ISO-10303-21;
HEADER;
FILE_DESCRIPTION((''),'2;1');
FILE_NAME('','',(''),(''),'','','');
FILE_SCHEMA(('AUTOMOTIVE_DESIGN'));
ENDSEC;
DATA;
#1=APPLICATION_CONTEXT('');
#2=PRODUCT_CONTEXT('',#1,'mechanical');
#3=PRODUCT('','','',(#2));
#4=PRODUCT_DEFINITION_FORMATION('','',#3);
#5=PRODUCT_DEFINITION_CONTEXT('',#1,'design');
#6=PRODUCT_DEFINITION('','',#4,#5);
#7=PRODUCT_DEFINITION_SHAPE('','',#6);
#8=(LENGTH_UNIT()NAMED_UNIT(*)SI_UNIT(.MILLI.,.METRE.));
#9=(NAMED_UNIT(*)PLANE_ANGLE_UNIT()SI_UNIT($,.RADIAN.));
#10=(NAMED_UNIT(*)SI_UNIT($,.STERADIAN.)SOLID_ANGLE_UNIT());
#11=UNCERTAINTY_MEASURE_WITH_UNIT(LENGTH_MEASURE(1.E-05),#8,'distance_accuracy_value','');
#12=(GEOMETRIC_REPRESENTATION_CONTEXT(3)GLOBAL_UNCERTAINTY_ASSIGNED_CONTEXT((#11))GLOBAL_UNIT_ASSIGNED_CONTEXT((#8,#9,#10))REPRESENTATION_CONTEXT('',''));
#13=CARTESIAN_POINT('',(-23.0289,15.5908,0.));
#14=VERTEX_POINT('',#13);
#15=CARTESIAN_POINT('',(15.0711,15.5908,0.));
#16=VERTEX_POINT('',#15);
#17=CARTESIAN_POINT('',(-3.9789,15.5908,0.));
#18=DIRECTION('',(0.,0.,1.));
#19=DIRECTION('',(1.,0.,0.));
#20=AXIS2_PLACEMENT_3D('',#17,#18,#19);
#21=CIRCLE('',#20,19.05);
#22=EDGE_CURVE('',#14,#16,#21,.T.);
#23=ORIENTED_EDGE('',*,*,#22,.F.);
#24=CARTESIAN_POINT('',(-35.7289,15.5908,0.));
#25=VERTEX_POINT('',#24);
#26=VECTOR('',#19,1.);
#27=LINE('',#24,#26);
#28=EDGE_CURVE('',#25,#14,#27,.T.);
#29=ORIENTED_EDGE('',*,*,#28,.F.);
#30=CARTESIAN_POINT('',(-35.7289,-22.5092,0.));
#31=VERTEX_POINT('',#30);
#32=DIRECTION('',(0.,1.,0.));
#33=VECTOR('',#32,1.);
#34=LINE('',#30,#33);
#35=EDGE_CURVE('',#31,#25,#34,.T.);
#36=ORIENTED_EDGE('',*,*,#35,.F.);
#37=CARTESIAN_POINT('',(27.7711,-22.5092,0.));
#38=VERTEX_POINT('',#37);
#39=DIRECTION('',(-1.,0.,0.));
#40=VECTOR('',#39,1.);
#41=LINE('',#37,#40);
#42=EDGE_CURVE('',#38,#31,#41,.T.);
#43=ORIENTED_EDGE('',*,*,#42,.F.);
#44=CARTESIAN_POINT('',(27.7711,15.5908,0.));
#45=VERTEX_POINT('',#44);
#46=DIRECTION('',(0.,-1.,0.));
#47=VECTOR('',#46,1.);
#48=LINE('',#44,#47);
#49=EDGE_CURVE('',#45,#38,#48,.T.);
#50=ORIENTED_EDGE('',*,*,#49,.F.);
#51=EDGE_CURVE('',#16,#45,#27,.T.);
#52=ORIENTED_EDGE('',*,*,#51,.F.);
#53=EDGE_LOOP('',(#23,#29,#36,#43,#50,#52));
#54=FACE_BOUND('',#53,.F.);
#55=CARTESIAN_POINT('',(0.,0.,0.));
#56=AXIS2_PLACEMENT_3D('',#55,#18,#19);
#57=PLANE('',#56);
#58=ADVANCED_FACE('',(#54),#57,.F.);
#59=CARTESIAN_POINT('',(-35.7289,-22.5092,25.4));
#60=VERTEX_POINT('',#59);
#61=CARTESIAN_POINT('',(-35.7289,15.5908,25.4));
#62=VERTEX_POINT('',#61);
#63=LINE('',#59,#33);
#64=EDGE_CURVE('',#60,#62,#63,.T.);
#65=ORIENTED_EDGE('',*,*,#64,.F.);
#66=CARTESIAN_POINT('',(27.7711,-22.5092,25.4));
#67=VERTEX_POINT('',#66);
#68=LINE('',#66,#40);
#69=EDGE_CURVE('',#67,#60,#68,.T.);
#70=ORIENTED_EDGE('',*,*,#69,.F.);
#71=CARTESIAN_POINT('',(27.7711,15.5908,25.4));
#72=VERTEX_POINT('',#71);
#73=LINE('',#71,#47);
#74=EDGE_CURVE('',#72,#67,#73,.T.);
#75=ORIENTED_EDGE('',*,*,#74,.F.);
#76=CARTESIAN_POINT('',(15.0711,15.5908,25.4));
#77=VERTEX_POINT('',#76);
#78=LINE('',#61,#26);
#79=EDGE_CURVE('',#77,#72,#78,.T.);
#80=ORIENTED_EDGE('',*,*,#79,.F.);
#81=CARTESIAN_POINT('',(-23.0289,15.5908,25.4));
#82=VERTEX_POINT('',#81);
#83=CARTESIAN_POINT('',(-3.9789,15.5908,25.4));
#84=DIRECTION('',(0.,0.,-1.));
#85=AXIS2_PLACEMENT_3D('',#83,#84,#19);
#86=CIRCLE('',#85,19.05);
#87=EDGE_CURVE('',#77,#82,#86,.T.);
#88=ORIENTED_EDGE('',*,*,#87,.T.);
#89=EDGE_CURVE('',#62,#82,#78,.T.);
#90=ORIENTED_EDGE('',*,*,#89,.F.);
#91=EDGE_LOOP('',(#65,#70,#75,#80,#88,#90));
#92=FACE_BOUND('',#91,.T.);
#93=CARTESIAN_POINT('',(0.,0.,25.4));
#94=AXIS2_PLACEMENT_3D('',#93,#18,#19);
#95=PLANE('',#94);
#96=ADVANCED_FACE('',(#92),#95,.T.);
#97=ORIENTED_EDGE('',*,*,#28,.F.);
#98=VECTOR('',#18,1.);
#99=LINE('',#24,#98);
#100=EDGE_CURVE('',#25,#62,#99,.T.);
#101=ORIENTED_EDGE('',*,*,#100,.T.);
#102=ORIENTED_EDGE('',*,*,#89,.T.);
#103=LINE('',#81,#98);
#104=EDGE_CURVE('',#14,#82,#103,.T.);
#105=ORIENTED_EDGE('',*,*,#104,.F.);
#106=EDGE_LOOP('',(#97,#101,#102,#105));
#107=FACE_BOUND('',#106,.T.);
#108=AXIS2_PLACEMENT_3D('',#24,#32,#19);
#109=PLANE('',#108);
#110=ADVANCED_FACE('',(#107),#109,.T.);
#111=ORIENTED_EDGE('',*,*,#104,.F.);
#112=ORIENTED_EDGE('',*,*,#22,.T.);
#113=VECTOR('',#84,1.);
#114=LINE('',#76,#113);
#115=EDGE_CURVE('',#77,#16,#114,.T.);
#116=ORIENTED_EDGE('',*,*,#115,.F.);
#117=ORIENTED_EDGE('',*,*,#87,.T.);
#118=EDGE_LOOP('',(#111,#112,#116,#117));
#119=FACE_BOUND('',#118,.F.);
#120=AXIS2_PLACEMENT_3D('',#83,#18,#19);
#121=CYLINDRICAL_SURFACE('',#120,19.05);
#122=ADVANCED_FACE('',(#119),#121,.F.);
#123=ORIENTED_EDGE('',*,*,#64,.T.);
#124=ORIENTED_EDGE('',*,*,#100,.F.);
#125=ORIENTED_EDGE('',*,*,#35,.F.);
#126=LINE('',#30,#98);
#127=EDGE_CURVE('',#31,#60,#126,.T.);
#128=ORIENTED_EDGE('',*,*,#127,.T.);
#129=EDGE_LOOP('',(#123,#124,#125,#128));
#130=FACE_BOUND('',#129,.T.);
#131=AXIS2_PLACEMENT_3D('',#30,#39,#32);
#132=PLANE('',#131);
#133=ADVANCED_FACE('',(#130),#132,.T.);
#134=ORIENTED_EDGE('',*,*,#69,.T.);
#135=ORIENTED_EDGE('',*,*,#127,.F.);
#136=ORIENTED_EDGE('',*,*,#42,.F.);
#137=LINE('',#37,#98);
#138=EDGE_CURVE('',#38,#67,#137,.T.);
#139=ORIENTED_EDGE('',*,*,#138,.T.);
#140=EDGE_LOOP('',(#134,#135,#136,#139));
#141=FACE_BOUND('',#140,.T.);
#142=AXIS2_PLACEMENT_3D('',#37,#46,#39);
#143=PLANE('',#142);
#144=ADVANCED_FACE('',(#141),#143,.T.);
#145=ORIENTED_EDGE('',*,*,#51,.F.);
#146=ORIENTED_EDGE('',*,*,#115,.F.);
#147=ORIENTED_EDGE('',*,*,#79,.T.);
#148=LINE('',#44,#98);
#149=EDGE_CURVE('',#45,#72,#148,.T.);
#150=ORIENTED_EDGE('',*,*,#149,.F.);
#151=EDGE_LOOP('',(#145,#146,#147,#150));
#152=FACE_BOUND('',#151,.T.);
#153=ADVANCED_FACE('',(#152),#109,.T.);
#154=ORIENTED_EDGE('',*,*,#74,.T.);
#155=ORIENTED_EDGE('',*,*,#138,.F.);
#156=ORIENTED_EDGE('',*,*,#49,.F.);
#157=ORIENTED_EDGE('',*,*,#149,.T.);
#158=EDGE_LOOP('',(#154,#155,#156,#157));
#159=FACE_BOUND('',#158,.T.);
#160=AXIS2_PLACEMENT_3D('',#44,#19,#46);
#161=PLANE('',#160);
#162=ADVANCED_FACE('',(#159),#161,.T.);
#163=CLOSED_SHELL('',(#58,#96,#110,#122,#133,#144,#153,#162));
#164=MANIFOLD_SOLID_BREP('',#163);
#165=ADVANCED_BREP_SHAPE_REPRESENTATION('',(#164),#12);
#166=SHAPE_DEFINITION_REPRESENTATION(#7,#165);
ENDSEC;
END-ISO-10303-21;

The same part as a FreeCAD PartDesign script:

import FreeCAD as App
import Part
import Sketcher
from FreeCAD import Vector
Q = App.Units.Quantity

doc = App.newDocument("Part")
body = doc.addObject("PartDesign::Body", "Body")

# Sketch on XY plane
sketch1 = body.newObject("Sketcher::SketchObject", "Sketch")
sketch1.AttachmentSupport = (doc.getObject("XY_Plane"), [""])
sketch1.MapMode = "FlatFace"
sketch1.addGeometry(Part.LineSegment(Vector(28, 16, 0), Vector(-36, 16, 0)), False)
sketch1.addGeometry(Part.LineSegment(Vector(-36, 16, 0), Vector(-36, -23, 0)), False)
sketch1.addGeometry(Part.LineSegment(Vector(-36, -23, 0), Vector(28, -23, 0)), False)
sketch1.addGeometry(Part.LineSegment(Vector(28, -23, 0), Vector(28, 16, 0)), False)
sketch1.addConstraint(Sketcher.Constraint("Coincident", 0, 2, 1, 1))
sketch1.addConstraint(Sketcher.Constraint("Coincident", 1, 2, 2, 1))
sketch1.addConstraint(Sketcher.Constraint("Coincident", 2, 2, 3, 1))
sketch1.addConstraint(Sketcher.Constraint("Coincident", 3, 2, 0, 1))
sketch1.addConstraint(Sketcher.Constraint("Horizontal", 0))
sketch1.addConstraint(Sketcher.Constraint("Vertical", 1))
sketch1.addConstraint(Sketcher.Constraint("Horizontal", 2))
sketch1.addConstraint(Sketcher.Constraint("Vertical", 3))
sketch1.addConstraint(Sketcher.Constraint("DistanceX", 0, 2, 0, 1, Q("2.5 in")))
sketch1.addConstraint(Sketcher.Constraint("DistanceY", 1, 2, 1, 1, Q("1.5 in")))
sketch1.addConstraint(Sketcher.Constraint("DistanceY", -1, 1, 0, 2, Q("0.6138 in")))
sketch1.addConstraint(Sketcher.Constraint("DistanceX", 0, 2, -1, 1, 35.729))
pad1 = body.newObject("PartDesign::Pad", "Pad")
pad1.Profile = sketch1
pad1.Length = Q("1 in")

# Sketch on XY plane
sketch2 = body.newObject("Sketcher::SketchObject", "Sketch001")
sketch2.AttachmentSupport = (doc.getObject("XY_Plane"), [""])
sketch2.MapMode = "FlatFace"
sketch2.AttachmentOffset = App.Placement(Vector(0, 0, 1 * 25.4), App.Rotation())
sketch2.addGeometry(Part.Circle(Vector(-4, 16, 0), Vector(0, 0, 1), 19), False)
sketch2.addConstraint(Sketcher.Constraint("Diameter", 0, Q("1.5 in")))
sketch2.addConstraint(Sketcher.Constraint("DistanceY", -1, 1, 0, 3, Q("0.6138 in")))
sketch2.addConstraint(Sketcher.Constraint("DistanceX", 0, 3, -1, 1, 3.979))
pocket1 = body.newObject("PartDesign::Pocket", "Pocket")
pocket1.Profile = sketch2
pocket1.Length = Q("1 in")

doc.recompute()
